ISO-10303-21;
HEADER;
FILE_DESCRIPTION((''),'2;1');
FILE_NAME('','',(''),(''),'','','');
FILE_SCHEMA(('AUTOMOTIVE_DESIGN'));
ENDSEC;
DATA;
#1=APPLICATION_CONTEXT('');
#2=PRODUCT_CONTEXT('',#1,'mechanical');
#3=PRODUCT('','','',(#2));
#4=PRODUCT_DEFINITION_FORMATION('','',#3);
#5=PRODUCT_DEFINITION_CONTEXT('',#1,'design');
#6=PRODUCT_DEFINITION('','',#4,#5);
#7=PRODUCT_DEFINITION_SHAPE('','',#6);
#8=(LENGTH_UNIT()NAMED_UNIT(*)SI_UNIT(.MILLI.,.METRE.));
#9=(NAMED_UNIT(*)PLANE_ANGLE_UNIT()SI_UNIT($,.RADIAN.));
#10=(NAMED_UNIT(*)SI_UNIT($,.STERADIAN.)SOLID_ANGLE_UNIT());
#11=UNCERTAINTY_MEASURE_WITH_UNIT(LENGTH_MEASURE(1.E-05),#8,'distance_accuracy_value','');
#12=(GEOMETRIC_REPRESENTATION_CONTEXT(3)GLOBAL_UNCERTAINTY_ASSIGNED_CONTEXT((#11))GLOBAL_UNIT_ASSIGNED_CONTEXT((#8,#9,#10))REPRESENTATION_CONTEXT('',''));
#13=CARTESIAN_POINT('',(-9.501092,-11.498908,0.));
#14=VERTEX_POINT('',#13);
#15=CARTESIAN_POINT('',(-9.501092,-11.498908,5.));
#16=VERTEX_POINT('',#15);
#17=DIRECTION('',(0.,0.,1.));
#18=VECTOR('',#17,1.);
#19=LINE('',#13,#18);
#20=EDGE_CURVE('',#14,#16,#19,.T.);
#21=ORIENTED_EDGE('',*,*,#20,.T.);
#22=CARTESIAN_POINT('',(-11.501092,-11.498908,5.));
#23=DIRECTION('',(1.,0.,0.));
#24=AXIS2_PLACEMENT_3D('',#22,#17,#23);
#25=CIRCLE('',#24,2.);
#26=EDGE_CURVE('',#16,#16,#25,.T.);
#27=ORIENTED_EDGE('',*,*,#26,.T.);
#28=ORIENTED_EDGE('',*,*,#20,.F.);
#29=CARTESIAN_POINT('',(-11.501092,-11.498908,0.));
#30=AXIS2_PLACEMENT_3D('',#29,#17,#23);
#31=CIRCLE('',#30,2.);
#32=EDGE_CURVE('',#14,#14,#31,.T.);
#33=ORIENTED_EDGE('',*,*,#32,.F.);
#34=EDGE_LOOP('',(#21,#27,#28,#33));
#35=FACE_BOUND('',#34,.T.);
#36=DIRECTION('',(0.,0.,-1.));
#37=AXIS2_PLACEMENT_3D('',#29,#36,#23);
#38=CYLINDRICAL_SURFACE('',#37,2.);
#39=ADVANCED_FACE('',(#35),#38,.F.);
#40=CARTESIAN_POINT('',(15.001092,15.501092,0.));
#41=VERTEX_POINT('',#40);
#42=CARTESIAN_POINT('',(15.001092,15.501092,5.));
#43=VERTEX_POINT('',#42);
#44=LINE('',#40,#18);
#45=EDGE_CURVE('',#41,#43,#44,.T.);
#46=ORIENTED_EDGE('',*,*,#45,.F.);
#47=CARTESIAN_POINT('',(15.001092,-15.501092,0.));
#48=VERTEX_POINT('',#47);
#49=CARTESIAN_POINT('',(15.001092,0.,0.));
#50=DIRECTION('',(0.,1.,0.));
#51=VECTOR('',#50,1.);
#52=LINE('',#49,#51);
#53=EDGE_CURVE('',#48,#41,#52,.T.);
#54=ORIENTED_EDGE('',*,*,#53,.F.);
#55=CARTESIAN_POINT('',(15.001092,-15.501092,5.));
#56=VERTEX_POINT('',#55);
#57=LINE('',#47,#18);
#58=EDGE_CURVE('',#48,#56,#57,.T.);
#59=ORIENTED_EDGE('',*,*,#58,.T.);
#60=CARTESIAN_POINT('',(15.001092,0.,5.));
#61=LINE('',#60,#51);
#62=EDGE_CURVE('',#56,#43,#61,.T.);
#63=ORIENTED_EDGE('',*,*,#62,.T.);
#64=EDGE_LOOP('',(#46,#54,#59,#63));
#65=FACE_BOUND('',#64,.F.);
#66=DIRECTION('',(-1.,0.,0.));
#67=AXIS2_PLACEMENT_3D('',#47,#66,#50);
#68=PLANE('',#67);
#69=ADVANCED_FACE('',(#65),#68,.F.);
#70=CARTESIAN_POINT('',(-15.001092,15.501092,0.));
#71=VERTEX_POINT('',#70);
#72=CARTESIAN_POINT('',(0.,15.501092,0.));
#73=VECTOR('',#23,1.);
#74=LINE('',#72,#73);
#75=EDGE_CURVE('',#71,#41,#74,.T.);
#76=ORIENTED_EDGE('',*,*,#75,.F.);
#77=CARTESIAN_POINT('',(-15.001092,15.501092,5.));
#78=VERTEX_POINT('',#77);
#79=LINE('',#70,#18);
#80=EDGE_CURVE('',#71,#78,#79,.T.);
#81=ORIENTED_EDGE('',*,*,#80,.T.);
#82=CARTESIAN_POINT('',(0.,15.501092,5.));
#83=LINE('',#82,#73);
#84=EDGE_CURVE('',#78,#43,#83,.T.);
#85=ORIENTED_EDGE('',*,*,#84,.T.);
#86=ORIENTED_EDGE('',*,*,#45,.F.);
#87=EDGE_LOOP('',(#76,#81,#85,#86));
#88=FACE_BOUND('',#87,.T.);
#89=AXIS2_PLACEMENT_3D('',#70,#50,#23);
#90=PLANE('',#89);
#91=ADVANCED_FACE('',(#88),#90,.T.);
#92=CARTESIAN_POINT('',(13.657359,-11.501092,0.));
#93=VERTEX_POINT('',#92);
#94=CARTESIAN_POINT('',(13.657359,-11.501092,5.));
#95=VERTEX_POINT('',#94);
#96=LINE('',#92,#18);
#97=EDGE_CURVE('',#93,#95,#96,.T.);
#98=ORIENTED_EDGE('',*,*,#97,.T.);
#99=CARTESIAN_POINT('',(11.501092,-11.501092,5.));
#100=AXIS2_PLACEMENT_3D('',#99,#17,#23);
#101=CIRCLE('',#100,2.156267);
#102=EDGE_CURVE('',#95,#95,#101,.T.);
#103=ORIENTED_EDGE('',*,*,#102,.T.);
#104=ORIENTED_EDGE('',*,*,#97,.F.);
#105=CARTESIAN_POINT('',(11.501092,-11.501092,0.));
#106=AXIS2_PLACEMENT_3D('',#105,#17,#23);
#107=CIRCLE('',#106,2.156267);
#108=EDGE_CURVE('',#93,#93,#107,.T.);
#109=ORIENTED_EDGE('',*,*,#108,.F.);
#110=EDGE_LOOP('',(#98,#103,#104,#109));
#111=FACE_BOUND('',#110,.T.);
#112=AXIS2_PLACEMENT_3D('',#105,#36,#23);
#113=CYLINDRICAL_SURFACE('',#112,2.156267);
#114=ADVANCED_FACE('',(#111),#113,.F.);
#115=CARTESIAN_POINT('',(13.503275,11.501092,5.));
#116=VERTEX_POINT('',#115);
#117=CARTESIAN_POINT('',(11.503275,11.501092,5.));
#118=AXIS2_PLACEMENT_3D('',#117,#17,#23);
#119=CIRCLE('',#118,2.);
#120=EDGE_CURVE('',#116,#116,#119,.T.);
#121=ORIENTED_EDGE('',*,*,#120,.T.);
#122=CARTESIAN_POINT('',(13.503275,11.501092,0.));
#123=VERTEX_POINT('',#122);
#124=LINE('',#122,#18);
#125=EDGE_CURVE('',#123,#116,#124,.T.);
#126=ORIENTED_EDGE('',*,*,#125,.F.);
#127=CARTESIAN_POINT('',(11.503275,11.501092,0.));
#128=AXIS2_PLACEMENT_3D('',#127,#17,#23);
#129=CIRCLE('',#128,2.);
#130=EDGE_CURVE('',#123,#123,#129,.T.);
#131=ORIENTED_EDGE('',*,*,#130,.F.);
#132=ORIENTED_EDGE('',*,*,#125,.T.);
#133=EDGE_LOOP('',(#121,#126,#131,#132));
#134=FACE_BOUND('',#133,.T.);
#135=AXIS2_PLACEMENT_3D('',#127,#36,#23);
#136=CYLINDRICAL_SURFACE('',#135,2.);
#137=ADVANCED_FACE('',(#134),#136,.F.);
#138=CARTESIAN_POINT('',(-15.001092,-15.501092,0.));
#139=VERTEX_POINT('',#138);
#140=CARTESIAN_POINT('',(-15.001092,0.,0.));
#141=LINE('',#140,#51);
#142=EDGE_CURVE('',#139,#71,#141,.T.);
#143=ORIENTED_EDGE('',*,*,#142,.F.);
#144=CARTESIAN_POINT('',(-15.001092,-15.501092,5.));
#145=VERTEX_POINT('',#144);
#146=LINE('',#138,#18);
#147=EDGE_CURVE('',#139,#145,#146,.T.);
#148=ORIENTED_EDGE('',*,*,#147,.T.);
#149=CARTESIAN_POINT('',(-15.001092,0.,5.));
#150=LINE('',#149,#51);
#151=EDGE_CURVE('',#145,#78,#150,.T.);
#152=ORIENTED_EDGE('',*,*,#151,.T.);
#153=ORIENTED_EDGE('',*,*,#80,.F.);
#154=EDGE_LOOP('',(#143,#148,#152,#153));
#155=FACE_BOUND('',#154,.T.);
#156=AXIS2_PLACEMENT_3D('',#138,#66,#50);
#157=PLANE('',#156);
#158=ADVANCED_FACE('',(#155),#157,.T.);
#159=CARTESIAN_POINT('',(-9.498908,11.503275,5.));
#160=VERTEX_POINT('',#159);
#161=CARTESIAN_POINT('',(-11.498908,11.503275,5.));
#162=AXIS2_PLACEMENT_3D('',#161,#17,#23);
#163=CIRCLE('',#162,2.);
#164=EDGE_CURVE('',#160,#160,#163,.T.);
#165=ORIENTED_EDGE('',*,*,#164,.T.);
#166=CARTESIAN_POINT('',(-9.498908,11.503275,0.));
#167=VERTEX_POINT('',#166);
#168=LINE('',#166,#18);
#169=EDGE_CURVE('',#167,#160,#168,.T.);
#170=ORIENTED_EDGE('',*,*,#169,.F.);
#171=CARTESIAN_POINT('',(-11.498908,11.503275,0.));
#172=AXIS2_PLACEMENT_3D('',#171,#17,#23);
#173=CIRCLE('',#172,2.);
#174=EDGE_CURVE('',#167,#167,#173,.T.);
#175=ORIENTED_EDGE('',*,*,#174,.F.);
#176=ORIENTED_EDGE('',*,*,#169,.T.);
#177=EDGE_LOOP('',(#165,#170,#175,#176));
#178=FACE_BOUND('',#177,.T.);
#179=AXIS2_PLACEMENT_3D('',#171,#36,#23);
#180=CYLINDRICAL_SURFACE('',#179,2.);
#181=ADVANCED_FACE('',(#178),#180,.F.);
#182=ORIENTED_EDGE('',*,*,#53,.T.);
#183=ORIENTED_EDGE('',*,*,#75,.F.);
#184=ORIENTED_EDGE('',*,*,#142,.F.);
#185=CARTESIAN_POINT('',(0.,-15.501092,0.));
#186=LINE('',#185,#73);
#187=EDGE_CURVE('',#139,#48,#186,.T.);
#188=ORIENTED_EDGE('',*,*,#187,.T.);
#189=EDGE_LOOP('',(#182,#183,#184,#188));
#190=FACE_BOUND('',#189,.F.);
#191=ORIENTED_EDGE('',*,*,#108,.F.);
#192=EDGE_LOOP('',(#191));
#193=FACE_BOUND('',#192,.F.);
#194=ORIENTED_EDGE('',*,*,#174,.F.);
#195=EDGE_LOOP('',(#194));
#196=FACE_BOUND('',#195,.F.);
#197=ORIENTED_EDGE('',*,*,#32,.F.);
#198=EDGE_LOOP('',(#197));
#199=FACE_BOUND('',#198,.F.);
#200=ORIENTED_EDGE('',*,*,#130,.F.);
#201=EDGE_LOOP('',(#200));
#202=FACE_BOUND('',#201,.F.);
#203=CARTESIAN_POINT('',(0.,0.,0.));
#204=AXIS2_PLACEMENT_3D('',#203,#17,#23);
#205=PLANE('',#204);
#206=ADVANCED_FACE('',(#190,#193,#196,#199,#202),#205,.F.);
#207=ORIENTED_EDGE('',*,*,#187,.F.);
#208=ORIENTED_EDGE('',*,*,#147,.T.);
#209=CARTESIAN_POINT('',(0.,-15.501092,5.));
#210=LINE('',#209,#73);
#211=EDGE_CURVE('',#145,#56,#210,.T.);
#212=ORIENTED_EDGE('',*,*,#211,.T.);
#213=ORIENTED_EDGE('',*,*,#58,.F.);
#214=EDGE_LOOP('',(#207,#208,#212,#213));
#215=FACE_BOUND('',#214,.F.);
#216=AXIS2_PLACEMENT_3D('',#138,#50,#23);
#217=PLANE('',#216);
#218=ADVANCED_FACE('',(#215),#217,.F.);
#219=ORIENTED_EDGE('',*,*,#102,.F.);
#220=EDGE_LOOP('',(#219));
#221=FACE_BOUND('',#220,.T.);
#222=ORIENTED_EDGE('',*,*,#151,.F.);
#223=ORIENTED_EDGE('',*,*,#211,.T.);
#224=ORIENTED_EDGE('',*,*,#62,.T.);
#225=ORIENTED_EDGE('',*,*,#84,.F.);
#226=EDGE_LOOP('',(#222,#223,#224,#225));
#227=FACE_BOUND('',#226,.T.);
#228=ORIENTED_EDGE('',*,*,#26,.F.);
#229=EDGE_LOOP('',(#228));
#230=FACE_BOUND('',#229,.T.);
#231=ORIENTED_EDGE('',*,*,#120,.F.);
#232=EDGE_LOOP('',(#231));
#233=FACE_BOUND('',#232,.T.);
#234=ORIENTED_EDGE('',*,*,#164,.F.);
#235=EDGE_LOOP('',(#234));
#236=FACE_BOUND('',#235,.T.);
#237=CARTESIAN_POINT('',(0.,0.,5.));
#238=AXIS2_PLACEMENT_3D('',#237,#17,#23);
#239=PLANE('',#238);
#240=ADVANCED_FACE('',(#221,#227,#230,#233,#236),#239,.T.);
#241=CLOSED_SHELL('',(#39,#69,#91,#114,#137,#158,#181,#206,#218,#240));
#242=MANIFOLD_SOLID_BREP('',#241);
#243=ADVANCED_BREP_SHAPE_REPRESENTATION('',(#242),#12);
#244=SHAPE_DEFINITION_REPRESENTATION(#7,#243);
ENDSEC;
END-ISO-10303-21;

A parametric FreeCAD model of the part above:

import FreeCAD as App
import Part
import Sketcher
Q = App.Units.Quantity

doc = App.newDocument("Part")
body = doc.addObject("PartDesign::Body", "Body")

sketch1 = body.newObject("Sketcher::SketchObject", "Sketch")
sketch1.AttachmentSupport = (doc.getObject("XY_Plane"), [""])
sketch1.MapMode = "FlatFace"
sketch1.addGeometry([
    Part.LineSegment(App.Vector(-15.001092, 15.501092, 0), App.Vector(-15.001092, -15.501092, 0)),
    Part.LineSegment(App.Vector(-15.001092, -15.501092, 0), App.Vector(15.001092, -15.501092, 0)),
    Part.LineSegment(App.Vector(15.001092, -15.501092, 0), App.Vector(15.001092, 15.501092, 0)),
    Part.LineSegment(App.Vector(15.001092, 15.501092, 0), App.Vector(-15.001092, 15.501092, 0)),
    Part.Circle(App.Vector(-11.501092, -11.498908, 0), App.Vector(0, 0, 1), 2),
    Part.Circle(App.Vector(11.501092, -11.501092, 0), App.Vector(0, 0, 1), 2.156267),
    Part.Circle(App.Vector(-11.498908, 11.503275, 0), App.Vector(0, 0, 1), 2),
    Part.Circle(App.Vector(11.503275, 11.501092, 0), App.Vector(0, 0, 1), 2),
], False)
sketch1.addConstraint([
    Sketcher.Constraint("Coincident", 0, 2, 1, 1),
    Sketcher.Constraint("Coincident", 1, 2, 2, 1),
    Sketcher.Constraint("Coincident", 2, 2, 3, 1),
    Sketcher.Constraint("Coincident", 3, 2, 0, 1),
    Sketcher.Constraint("Vertical", 0),
    Sketcher.Constraint("Horizontal", 1),
    Sketcher.Constraint("Vertical", 2),
    Sketcher.Constraint("Horizontal", 3),
    Sketcher.Constraint("Equal", 4, 6),
    Sketcher.Constraint("Equal", 6, 7),
    Sketcher.Constraint("Symmetric", 0, 2, 2, 2, -1, 1),
    Sketcher.Constraint("Diameter", 4, Q("4 mm")),
    Sketcher.Constraint("DistanceX", 6, 3, 5, 3, Q("23 mm")),
    Sketcher.Constraint("DistanceY", 4, 3, 7, 3, Q("23 mm")),
    Sketcher.Constraint("DistanceY", 0, 2, 5, 3, Q("4 mm")),
    Sketcher.Constraint("DistanceY", 7, 3, 2, 2, Q("4 mm")),
    Sketcher.Constraint("DistanceX", 0, 2, 4, 3, Q("3.5 mm")),
    Sketcher.Constraint("DistanceX", 5, 3, 1, 2, Q("3.5 mm")),
    Sketcher.Constraint("Diameter", 5, Q("4.312534 mm")),
    Sketcher.Constraint("DistanceX", 1, 1, 1, 2, Q("30.002183 mm")),
    Sketcher.Constraint("DistanceY", 0, 2, 0, 1, Q("31.002183 mm")),
    Sketcher.Constraint("DistanceY", -1, 1, 6, 3, Q("11.503275 mm")),
    Sketcher.Constraint("DistanceX", -1, 1, 7, 3, Q("11.503275 mm")),
])
pad1 = body.newObject("PartDesign::Pad", "Pad")
pad1.Profile = sketch1
pad1.Length = 5

doc.recompute()
